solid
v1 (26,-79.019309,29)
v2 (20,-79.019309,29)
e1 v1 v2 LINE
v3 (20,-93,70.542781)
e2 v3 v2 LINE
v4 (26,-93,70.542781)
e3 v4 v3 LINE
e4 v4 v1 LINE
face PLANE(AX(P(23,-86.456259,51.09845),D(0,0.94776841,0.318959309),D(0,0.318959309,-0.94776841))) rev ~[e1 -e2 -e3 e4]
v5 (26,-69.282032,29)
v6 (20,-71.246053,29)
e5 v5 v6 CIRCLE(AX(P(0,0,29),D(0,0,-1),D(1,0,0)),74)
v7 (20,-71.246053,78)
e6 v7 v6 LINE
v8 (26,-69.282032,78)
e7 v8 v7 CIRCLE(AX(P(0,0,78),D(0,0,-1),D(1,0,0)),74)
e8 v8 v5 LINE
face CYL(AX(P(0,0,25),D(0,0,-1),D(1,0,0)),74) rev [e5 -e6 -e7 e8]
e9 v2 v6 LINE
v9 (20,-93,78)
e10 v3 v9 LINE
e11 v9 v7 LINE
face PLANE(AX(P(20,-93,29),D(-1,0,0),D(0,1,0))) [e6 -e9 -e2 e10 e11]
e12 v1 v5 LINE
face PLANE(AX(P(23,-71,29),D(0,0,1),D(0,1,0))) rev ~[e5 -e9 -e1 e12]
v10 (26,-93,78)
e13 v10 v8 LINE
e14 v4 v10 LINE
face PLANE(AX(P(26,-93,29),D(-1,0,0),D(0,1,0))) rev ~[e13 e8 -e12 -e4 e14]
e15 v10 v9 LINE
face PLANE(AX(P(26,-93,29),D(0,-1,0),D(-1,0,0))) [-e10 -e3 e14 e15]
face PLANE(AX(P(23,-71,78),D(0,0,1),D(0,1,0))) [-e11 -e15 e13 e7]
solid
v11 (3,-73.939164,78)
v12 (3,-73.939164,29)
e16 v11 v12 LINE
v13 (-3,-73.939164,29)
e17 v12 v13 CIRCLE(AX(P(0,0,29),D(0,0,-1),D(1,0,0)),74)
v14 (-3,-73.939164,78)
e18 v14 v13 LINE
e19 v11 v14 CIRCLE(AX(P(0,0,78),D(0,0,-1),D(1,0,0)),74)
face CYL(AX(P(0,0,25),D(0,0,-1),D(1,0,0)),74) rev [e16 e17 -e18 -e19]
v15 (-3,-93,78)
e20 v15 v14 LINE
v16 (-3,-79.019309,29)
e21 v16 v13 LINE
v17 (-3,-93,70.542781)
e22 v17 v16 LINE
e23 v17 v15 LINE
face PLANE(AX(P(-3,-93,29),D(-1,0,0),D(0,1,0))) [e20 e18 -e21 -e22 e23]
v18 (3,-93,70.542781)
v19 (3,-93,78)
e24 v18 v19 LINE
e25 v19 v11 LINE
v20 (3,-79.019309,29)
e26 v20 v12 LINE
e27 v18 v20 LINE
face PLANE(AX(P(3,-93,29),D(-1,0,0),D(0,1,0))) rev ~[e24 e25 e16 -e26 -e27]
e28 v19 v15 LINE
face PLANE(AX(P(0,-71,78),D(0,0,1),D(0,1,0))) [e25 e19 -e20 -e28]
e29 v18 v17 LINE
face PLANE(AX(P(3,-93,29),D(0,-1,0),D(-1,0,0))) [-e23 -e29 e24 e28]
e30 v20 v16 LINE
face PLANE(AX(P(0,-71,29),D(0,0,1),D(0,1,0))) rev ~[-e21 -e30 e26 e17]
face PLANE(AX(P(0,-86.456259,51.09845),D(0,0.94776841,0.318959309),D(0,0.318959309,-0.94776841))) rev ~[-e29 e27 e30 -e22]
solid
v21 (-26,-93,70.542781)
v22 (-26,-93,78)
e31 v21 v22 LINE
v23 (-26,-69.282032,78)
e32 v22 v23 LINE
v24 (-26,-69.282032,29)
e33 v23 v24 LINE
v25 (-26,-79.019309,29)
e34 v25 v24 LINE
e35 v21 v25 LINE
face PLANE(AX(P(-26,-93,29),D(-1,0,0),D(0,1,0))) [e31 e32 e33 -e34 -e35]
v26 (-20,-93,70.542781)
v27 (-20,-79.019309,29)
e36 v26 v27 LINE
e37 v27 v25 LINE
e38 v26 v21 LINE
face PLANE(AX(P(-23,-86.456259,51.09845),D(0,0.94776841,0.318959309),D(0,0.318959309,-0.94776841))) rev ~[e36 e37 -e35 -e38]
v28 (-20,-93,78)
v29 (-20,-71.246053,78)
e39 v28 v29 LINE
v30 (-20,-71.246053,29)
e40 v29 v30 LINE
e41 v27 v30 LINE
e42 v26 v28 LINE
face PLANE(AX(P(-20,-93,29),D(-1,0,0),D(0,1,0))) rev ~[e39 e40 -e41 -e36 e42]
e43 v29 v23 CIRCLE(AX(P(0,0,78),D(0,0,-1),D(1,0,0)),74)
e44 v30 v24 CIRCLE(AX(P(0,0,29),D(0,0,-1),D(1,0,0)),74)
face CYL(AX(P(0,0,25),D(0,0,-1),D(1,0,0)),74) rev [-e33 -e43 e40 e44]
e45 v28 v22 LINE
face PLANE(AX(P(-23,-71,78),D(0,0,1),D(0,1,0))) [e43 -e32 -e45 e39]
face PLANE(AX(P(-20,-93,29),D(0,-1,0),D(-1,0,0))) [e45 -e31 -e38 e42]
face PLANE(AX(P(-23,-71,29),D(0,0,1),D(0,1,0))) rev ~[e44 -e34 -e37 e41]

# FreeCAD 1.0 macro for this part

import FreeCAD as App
import Part
import Sketcher

V = App.Vector

doc = App.newDocument("Part")
params = doc.addObject("Spreadsheet::Sheet", "Params")
for row, (alias, value) in enumerate([
    ("sketch1_diameter", "148 mm"),
    ("pad1_length", "64 mm"),
    ("sketch2_width", "80 mm"),
    ("sketch2_height", "6 mm"),
    ("pad2_length", "20 mm"),
    ("sketch3_width", "44 mm"),
    ("sketch3_height", "6 mm"),
    ("pad3_length", "49 mm"),
    ("sketch4_width", "80 mm"),
    ("sketch4_height", "6 mm"),
    ("pad4_length", "20 mm"),
    ("sketch5_width", "44 mm"),
    ("sketch5_height", "6 mm"),
    ("pad5_length", "49 mm"),
    ("sketch6_width", "80 mm"),
    ("sketch6_height", "6 mm"),
    ("pad6_length", "20 mm"),
    ("sketch7_width", "44 mm"),
    ("sketch7_height", "6 mm"),
    ("pad7_length", "49 mm"),
], start=1):
    params.set(f"A{row}", alias)
    params.set(f"B{row}", "=" + value)
    params.setAlias(f"B{row}", alias)

body = doc.addObject("PartDesign::Body", "Body")

# Sketch on XY plane
sketch1 = body.newObject("Sketcher::SketchObject", "Sketch")
sketch1.AttachmentSupport = (doc.getObject("XY_Plane"), [""])
sketch1.MapMode = "FlatFace"
sketch1.AttachmentOffset = App.Placement(V(0, 0, 25), App.Rotation())
sketch1.addGeometry(Part.Circle(V(0, 0, 0), V(0, 0, 1), 74), False)
sketch1.addConstraint([
    Sketcher.Constraint("Coincident", 0, 3, -1, 1),
    Sketcher.Constraint("Diameter", 0, 148.0),
])
sketch1.setExpression("Constraints[1]", "Params.sketch1_diameter")
pad1 = body.newObject("PartDesign::Pad", "Pad")
pad1.Profile = sketch1
pad1.setExpression("Length", "Params.pad1_length")
body2 = doc.addObject("PartDesign::Body", "Body001")

# Sketch on XY plane
sketch2 = body2.newObject("Sketcher::SketchObject", "Sketch001")
sketch2.AttachmentSupport = (doc.getObject("XY_Plane001"), [""])
sketch2.MapMode = "FlatFace"
sketch2.addGeometry([
    Part.LineSegment(V(0, 6, 0), V(0, 0, 0)),
    Part.LineSegment(V(0, 0, 0), V(80, 0, 0)),
    Part.LineSegment(V(80, 0, 0), V(80, 6, 0)),
    Part.LineSegment(V(80, 6, 0), V(0, 6, 0)),
], False)
sketch2.addConstraint([
    Sketcher.Constraint("Coincident", 0, 2, 1, 1),
    Sketcher.Constraint("Coincident", 1, 2, 2, 1),
    Sketcher.Constraint("Coincident", 2, 2, 3, 1),
    Sketcher.Constraint("Coincident", 3, 2, 0, 1),
    Sketcher.Constraint("Vertical", 0),
    Sketcher.Constraint("Horizontal", 1),
    Sketcher.Constraint("Vertical", 2),
    Sketcher.Constraint("Horizontal", 3),
    Sketcher.Constraint("Coincident", 0, 2, -1, 1),
    Sketcher.Constraint("DistanceX", 1, 1, 1, 2, 80.0),
    Sketcher.Constraint("DistanceY", 0, 2, 0, 1, 6.0),
])
sketch2.setExpression("Constraints[9]", "Params.sketch2_width")
sketch2.setExpression("Constraints[10]", "Params.sketch2_height")
pad2 = body2.newObject("PartDesign::Pad", "Pad001")
pad2.Profile = sketch2
pad2.setExpression("Length", "Params.pad2_length")
body3 = doc.addObject("PartDesign::Body", "Body002")
doc.recompute()

body2.Placement = App.Placement(V(-118.17, -24, 82.63), App.Rotation(V(0, 1, 0), 71.4))
boolean = body3.newObject("PartDesign::Boolean", "Boolean")
boolean.Type = "Fuse"
boolean.addObjects([body2])
body4 = doc.addObject("PartDesign::Body", "Body003")

# Sketch on XY plane
sketch3 = body4.newObject("Sketcher::SketchObject", "Sketch002")
sketch3.AttachmentSupport = (doc.getObject("XY_Plane003"), [""])
sketch3.MapMode = "FlatFace"
sketch3.AttachmentOffset = App.Placement(V(0, 0, 29), App.Rotation())
sketch3.addGeometry([
    Part.LineSegment(V(-93, -18, 0), V(-93, -24, 0)),
    Part.LineSegment(V(-93, -24, 0), V(-49, -24, 0)),
    Part.LineSegment(V(-49, -24, 0), V(-49, -18, 0)),
    Part.LineSegment(V(-49, -18, 0), V(-93, -18, 0)),
], False)
sketch3.addConstraint([
    Sketcher.Constraint("Coincident", 0, 2, 1, 1),
    Sketcher.Constraint("Coincident", 1, 2, 2, 1),
    Sketcher.Constraint("Coincident", 2, 2, 3, 1),
    Sketcher.Constraint("Coincident", 3, 2, 0, 1),
    Sketcher.Constraint("Vertical", 0),
    Sketcher.Constraint("Horizontal", 1),
    Sketcher.Constraint("Vertical", 2),
    Sketcher.Constraint("Horizontal", 3),
    Sketcher.Constraint("DistanceX", 1, 1, 1, 2, 44.0),
    Sketcher.Constraint("DistanceY", 0, 2, 0, 1, 6.0),
    Sketcher.Constraint("DistanceX", 0, 2, -1, 1, 93.0),
    Sketcher.Constraint("DistanceY", 0, 2, -1, 1, 24.0),
])
sketch3.setExpression("Constraints[8]", "Params.sketch3_width")
sketch3.setExpression("Constraints[9]", "Params.sketch3_height")
pad3 = body4.newObject("PartDesign::Pad", "Pad002")
pad3.Profile = sketch3
pad3.setExpression("Length", "Params.pad3_length")
doc.recompute()

boolean2 = body4.newObject("PartDesign::Boolean", "Boolean001")
boolean2.Type = "Cut"
boolean2.addObjects([body3])
body5 = doc.addObject("PartDesign::Body", "Body004")
doc.recompute()

body4.Placement = App.Placement(V(-44, 0, 0), App.Rotation(V(0, 0, 1), 90))
boolean3 = body5.newObject("PartDesign::Boolean", "Boolean002")
boolean3.Type = "Fuse"
boolean3.addObjects([body4])
body6 = doc.addObject("PartDesign::Body", "Body005")

# Sketch on XY plane
sketch4 = body6.newObject("Sketcher::SketchObject", "Sketch003")
sketch4.AttachmentSupport = (doc.getObject("XY_Plane005"), [""])
sketch4.MapMode = "FlatFace"
sketch4.addGeometry([
    Part.LineSegment(V(0, 6, 0), V(0, 0, 0)),
    Part.LineSegment(V(0, 0, 0), V(80, 0, 0)),
    Part.LineSegment(V(80, 0, 0), V(80, 6, 0)),
    Part.LineSegment(V(80, 6, 0), V(0, 6, 0)),
], False)
sketch4.addConstraint([
    Sketcher.Constraint("Coincident", 0, 2, 1, 1),
    Sketcher.Constraint("Coincident", 1, 2, 2, 1),
    Sketcher.Constraint("Coincident", 2, 2, 3, 1),
    Sketcher.Constraint("Coincident", 3, 2, 0, 1),
    Sketcher.Constraint("Vertical", 0),
    Sketcher.Constraint("Horizontal", 1),
    Sketcher.Constraint("Vertical", 2),
    Sketcher.Constraint("Horizontal", 3),
    Sketcher.Constraint("Coincident", 0, 2, -1, 1),
    Sketcher.Constraint("DistanceX", 1, 1, 1, 2, 80.0),
    Sketcher.Constraint("DistanceY", 0, 2, 0, 1, 6.0),
])
sketch4.setExpression("Constraints[9]", "Params.sketch4_width")
sketch4.setExpression("Constraints[10]", "Params.sketch4_height")
pad4 = body6.newObject("PartDesign::Pad", "Pad003")
pad4.Profile = sketch4
pad4.setExpression("Length", "Params.pad4_length")
body7 = doc.addObject("PartDesign::Body", "Body006")
doc.recompute()

body6.Placement = App.Placement(V(-118.17, -24, 82.63), App.Rotation(V(0, 1, 0), 71.4))
boolean4 = body7.newObject("PartDesign::Boolean", "Boolean003")
boolean4.Type = "Fuse"
boolean4.addObjects([body6])
body8 = doc.addObject("PartDesign::Body", "Body007")

# Sketch on XY plane
sketch5 = body8.newObject("Sketcher::SketchObject", "Sketch004")
sketch5.AttachmentSupport = (doc.getObject("XY_Plane007"), [""])
sketch5.MapMode = "FlatFace"
sketch5.AttachmentOffset = App.Placement(V(0, 0, 29), App.Rotation())
sketch5.addGeometry([
    Part.LineSegment(V(-93, -18, 0), V(-93, -24, 0)),
    Part.LineSegment(V(-93, -24, 0), V(-49, -24, 0)),
    Part.LineSegment(V(-49, -24, 0), V(-49, -18, 0)),
    Part.LineSegment(V(-49, -18, 0), V(-93, -18, 0)),
], False)
sketch5.addConstraint([
    Sketcher.Constraint("Coincident", 0, 2, 1, 1),
    Sketcher.Constraint("Coincident", 1, 2, 2, 1),
    Sketcher.Constraint("Coincident", 2, 2, 3, 1),
    Sketcher.Constraint("Coincident", 3, 2, 0, 1),
    Sketcher.Constraint("Vertical", 0),
    Sketcher.Constraint("Horizontal", 1),
    Sketcher.Constraint("Vertical", 2),
    Sketcher.Constraint("Horizontal", 3),
    Sketcher.Constraint("DistanceX", 1, 1, 1, 2, 44.0),
    Sketcher.Constraint("DistanceY", 0, 2, 0, 1, 6.0),
    Sketcher.Constraint("DistanceX", 0, 2, -1, 1, 93.0),
    Sketcher.Constraint("DistanceY", 0, 2, -1, 1, 24.0),
])
sketch5.setExpression("Constraints[8]", "Params.sketch5_width")
sketch5.setExpression("Constraints[9]", "Params.sketch5_height")
pad5 = body8.newObject("PartDesign::Pad", "Pad004")
pad5.Profile = sketch5
pad5.setExpression("Length", "Params.pad5_length")
doc.recompute()

boolean5 = body8.newObject("PartDesign::Boolean", "Boolean004")
boolean5.Type = "Cut"
boolean5.addObjects([body7])
body9 = doc.addObject("PartDesign::Body", "Body008")
doc.recompute()

body8.Placement = App.Placement(V(-21, 0, 0), App.Rotation(V(0, 0, 1), 90))
boolean6 = body9.newObject("PartDesign::Boolean", "Boolean005")
boolean6.Type = "Fuse"
boolean6.addObjects([body8])
body10 = doc.addObject("PartDesign::Body", "Body009")

# Sketch on XY plane
sketch6 = body10.newObject("Sketcher::SketchObject", "Sketch005")
sketch6.AttachmentSupport = (doc.getObject("XY_Plane009"), [""])
sketch6.MapMode = "FlatFace"
sketch6.addGeometry([
    Part.LineSegment(V(0, 6, 0), V(0, 0, 0)),
    Part.LineSegment(V(0, 0, 0), V(80, 0, 0)),
    Part.LineSegment(V(80, 0, 0), V(80, 6, 0)),
    Part.LineSegment(V(80, 6, 0), V(0, 6, 0)),
], False)
sketch6.addConstraint([
    Sketcher.Constraint("Coincident", 0, 2, 1, 1),
    Sketcher.Constraint("Coincident", 1, 2, 2, 1),
    Sketcher.Constraint("Coincident", 2, 2, 3, 1),
    Sketcher.Constraint("Coincident", 3, 2, 0, 1),
    Sketcher.Constraint("Vertical", 0),
    Sketcher.Constraint("Horizontal", 1),
    Sketcher.Constraint("Vertical", 2),
    Sketcher.Constraint("Horizontal", 3),
    Sketcher.Constraint("Coincident", 0, 2, -1, 1),
    Sketcher.Constraint("DistanceX", 1, 1, 1, 2, 80.0),
    Sketcher.Constraint("DistanceY", 0, 2, 0, 1, 6.0),
])
sketch6.setExpression("Constraints[9]", "Params.sketch6_width")
sketch6.setExpression("Constraints[10]", "Params.sketch6_height")
pad6 = body10.newObject("PartDesign::Pad", "Pad005")
pad6.Profile = sketch6
pad6.setExpression("Length", "Params.pad6_length")
body11 = doc.addObject("PartDesign::Body", "Body010")
doc.recompute()

body10.Placement = App.Placement(V(-118.17, -24, 82.63), App.Rotation(V(0, 1, 0), 71.4))
boolean7 = body11.newObject("PartDesign::Boolean", "Boolean006")
boolean7.Type = "Fuse"
boolean7.addObjects([body10])
body12 = doc.addObject("PartDesign::Body", "Body011")

# Sketch on XY plane
sketch7 = body12.newObject("Sketcher::SketchObject", "Sketch006")
sketch7.AttachmentSupport = (doc.getObject("XY_Plane011"), [""])
sketch7.MapMode = "FlatFace"
sketch7.AttachmentOffset = App.Placement(V(0, 0, 29), App.Rotation())
sketch7.addGeometry([
    Part.LineSegment(V(-93, -18, 0), V(-93, -24, 0)),
    Part.LineSegment(V(-93, -24, 0), V(-49, -24, 0)),
    Part.LineSegment(V(-49, -24, 0), V(-49, -18, 0)),
    Part.LineSegment(V(-49, -18, 0), V(-93, -18, 0)),
], False)
sketch7.addConstraint([
    Sketcher.Constraint("Coincident", 0, 2, 1, 1),
    Sketcher.Constraint("Coincident", 1, 2, 2, 1),
    Sketcher.Constraint("Coincident", 2, 2, 3, 1),
    Sketcher.Constraint("Coincident", 3, 2, 0, 1),
    Sketcher.Constraint("Vertical", 0),
    Sketcher.Constraint("Horizontal", 1),
    Sketcher.Constraint("Vertical", 2),
    Sketcher.Constraint("Horizontal", 3),
    Sketcher.Constraint("DistanceX", 1, 1, 1, 2, 44.0),
    Sketcher.Constraint("DistanceY", 0, 2, 0, 1, 6.0),
    Sketcher.Constraint("DistanceX", 0, 2, -1, 1, 93.0),
    Sketcher.Constraint("DistanceY", 0, 2, -1, 1, 24.0),
])
sketch7.setExpression("Constraints[8]", "Params.sketch7_width")
sketch7.setExpression("Constraints[9]", "Params.sketch7_height")
pad7 = body12.newObject("PartDesign::Pad", "Pad006")
pad7.Profile = sketch7
pad7.setExpression("Length", "Params.pad7_length")
doc.recompute()

boolean8 = body12.newObject("PartDesign::Boolean", "Boolean007")
boolean8.Type = "Cut"
boolean8.addObjects([body11])
body13 = doc.addObject("PartDesign::Body", "Body012")
body13.AllowCompound = True
doc.recompute()

body12.Placement = App.Placement(V(2, 0, 0), App.Rotation(V(0, 0, 1), 90))
boolean9 = body13.newObject("PartDesign::Boolean", "Boolean008")
boolean9.Type = "Fuse"
boolean9.addObjects([body12])
doc.recompute()

boolean10 = body13.newObject("PartDesign::Boolean", "Boolean009")
boolean10.Type = "Fuse"
boolean10.addObjects([body5])
doc.recompute()

boolean11 = body13.newObject("PartDesign::Boolean", "Boolean010")
boolean11.Type = "Fuse"
boolean11.addObjects([body9])
doc.recompute()

boolean12 = body13.newObject("PartDesign::Boolean", "Boolean011")
boolean12.Type = "Cut"
boolean12.addObjects([body])

doc.recompute()
